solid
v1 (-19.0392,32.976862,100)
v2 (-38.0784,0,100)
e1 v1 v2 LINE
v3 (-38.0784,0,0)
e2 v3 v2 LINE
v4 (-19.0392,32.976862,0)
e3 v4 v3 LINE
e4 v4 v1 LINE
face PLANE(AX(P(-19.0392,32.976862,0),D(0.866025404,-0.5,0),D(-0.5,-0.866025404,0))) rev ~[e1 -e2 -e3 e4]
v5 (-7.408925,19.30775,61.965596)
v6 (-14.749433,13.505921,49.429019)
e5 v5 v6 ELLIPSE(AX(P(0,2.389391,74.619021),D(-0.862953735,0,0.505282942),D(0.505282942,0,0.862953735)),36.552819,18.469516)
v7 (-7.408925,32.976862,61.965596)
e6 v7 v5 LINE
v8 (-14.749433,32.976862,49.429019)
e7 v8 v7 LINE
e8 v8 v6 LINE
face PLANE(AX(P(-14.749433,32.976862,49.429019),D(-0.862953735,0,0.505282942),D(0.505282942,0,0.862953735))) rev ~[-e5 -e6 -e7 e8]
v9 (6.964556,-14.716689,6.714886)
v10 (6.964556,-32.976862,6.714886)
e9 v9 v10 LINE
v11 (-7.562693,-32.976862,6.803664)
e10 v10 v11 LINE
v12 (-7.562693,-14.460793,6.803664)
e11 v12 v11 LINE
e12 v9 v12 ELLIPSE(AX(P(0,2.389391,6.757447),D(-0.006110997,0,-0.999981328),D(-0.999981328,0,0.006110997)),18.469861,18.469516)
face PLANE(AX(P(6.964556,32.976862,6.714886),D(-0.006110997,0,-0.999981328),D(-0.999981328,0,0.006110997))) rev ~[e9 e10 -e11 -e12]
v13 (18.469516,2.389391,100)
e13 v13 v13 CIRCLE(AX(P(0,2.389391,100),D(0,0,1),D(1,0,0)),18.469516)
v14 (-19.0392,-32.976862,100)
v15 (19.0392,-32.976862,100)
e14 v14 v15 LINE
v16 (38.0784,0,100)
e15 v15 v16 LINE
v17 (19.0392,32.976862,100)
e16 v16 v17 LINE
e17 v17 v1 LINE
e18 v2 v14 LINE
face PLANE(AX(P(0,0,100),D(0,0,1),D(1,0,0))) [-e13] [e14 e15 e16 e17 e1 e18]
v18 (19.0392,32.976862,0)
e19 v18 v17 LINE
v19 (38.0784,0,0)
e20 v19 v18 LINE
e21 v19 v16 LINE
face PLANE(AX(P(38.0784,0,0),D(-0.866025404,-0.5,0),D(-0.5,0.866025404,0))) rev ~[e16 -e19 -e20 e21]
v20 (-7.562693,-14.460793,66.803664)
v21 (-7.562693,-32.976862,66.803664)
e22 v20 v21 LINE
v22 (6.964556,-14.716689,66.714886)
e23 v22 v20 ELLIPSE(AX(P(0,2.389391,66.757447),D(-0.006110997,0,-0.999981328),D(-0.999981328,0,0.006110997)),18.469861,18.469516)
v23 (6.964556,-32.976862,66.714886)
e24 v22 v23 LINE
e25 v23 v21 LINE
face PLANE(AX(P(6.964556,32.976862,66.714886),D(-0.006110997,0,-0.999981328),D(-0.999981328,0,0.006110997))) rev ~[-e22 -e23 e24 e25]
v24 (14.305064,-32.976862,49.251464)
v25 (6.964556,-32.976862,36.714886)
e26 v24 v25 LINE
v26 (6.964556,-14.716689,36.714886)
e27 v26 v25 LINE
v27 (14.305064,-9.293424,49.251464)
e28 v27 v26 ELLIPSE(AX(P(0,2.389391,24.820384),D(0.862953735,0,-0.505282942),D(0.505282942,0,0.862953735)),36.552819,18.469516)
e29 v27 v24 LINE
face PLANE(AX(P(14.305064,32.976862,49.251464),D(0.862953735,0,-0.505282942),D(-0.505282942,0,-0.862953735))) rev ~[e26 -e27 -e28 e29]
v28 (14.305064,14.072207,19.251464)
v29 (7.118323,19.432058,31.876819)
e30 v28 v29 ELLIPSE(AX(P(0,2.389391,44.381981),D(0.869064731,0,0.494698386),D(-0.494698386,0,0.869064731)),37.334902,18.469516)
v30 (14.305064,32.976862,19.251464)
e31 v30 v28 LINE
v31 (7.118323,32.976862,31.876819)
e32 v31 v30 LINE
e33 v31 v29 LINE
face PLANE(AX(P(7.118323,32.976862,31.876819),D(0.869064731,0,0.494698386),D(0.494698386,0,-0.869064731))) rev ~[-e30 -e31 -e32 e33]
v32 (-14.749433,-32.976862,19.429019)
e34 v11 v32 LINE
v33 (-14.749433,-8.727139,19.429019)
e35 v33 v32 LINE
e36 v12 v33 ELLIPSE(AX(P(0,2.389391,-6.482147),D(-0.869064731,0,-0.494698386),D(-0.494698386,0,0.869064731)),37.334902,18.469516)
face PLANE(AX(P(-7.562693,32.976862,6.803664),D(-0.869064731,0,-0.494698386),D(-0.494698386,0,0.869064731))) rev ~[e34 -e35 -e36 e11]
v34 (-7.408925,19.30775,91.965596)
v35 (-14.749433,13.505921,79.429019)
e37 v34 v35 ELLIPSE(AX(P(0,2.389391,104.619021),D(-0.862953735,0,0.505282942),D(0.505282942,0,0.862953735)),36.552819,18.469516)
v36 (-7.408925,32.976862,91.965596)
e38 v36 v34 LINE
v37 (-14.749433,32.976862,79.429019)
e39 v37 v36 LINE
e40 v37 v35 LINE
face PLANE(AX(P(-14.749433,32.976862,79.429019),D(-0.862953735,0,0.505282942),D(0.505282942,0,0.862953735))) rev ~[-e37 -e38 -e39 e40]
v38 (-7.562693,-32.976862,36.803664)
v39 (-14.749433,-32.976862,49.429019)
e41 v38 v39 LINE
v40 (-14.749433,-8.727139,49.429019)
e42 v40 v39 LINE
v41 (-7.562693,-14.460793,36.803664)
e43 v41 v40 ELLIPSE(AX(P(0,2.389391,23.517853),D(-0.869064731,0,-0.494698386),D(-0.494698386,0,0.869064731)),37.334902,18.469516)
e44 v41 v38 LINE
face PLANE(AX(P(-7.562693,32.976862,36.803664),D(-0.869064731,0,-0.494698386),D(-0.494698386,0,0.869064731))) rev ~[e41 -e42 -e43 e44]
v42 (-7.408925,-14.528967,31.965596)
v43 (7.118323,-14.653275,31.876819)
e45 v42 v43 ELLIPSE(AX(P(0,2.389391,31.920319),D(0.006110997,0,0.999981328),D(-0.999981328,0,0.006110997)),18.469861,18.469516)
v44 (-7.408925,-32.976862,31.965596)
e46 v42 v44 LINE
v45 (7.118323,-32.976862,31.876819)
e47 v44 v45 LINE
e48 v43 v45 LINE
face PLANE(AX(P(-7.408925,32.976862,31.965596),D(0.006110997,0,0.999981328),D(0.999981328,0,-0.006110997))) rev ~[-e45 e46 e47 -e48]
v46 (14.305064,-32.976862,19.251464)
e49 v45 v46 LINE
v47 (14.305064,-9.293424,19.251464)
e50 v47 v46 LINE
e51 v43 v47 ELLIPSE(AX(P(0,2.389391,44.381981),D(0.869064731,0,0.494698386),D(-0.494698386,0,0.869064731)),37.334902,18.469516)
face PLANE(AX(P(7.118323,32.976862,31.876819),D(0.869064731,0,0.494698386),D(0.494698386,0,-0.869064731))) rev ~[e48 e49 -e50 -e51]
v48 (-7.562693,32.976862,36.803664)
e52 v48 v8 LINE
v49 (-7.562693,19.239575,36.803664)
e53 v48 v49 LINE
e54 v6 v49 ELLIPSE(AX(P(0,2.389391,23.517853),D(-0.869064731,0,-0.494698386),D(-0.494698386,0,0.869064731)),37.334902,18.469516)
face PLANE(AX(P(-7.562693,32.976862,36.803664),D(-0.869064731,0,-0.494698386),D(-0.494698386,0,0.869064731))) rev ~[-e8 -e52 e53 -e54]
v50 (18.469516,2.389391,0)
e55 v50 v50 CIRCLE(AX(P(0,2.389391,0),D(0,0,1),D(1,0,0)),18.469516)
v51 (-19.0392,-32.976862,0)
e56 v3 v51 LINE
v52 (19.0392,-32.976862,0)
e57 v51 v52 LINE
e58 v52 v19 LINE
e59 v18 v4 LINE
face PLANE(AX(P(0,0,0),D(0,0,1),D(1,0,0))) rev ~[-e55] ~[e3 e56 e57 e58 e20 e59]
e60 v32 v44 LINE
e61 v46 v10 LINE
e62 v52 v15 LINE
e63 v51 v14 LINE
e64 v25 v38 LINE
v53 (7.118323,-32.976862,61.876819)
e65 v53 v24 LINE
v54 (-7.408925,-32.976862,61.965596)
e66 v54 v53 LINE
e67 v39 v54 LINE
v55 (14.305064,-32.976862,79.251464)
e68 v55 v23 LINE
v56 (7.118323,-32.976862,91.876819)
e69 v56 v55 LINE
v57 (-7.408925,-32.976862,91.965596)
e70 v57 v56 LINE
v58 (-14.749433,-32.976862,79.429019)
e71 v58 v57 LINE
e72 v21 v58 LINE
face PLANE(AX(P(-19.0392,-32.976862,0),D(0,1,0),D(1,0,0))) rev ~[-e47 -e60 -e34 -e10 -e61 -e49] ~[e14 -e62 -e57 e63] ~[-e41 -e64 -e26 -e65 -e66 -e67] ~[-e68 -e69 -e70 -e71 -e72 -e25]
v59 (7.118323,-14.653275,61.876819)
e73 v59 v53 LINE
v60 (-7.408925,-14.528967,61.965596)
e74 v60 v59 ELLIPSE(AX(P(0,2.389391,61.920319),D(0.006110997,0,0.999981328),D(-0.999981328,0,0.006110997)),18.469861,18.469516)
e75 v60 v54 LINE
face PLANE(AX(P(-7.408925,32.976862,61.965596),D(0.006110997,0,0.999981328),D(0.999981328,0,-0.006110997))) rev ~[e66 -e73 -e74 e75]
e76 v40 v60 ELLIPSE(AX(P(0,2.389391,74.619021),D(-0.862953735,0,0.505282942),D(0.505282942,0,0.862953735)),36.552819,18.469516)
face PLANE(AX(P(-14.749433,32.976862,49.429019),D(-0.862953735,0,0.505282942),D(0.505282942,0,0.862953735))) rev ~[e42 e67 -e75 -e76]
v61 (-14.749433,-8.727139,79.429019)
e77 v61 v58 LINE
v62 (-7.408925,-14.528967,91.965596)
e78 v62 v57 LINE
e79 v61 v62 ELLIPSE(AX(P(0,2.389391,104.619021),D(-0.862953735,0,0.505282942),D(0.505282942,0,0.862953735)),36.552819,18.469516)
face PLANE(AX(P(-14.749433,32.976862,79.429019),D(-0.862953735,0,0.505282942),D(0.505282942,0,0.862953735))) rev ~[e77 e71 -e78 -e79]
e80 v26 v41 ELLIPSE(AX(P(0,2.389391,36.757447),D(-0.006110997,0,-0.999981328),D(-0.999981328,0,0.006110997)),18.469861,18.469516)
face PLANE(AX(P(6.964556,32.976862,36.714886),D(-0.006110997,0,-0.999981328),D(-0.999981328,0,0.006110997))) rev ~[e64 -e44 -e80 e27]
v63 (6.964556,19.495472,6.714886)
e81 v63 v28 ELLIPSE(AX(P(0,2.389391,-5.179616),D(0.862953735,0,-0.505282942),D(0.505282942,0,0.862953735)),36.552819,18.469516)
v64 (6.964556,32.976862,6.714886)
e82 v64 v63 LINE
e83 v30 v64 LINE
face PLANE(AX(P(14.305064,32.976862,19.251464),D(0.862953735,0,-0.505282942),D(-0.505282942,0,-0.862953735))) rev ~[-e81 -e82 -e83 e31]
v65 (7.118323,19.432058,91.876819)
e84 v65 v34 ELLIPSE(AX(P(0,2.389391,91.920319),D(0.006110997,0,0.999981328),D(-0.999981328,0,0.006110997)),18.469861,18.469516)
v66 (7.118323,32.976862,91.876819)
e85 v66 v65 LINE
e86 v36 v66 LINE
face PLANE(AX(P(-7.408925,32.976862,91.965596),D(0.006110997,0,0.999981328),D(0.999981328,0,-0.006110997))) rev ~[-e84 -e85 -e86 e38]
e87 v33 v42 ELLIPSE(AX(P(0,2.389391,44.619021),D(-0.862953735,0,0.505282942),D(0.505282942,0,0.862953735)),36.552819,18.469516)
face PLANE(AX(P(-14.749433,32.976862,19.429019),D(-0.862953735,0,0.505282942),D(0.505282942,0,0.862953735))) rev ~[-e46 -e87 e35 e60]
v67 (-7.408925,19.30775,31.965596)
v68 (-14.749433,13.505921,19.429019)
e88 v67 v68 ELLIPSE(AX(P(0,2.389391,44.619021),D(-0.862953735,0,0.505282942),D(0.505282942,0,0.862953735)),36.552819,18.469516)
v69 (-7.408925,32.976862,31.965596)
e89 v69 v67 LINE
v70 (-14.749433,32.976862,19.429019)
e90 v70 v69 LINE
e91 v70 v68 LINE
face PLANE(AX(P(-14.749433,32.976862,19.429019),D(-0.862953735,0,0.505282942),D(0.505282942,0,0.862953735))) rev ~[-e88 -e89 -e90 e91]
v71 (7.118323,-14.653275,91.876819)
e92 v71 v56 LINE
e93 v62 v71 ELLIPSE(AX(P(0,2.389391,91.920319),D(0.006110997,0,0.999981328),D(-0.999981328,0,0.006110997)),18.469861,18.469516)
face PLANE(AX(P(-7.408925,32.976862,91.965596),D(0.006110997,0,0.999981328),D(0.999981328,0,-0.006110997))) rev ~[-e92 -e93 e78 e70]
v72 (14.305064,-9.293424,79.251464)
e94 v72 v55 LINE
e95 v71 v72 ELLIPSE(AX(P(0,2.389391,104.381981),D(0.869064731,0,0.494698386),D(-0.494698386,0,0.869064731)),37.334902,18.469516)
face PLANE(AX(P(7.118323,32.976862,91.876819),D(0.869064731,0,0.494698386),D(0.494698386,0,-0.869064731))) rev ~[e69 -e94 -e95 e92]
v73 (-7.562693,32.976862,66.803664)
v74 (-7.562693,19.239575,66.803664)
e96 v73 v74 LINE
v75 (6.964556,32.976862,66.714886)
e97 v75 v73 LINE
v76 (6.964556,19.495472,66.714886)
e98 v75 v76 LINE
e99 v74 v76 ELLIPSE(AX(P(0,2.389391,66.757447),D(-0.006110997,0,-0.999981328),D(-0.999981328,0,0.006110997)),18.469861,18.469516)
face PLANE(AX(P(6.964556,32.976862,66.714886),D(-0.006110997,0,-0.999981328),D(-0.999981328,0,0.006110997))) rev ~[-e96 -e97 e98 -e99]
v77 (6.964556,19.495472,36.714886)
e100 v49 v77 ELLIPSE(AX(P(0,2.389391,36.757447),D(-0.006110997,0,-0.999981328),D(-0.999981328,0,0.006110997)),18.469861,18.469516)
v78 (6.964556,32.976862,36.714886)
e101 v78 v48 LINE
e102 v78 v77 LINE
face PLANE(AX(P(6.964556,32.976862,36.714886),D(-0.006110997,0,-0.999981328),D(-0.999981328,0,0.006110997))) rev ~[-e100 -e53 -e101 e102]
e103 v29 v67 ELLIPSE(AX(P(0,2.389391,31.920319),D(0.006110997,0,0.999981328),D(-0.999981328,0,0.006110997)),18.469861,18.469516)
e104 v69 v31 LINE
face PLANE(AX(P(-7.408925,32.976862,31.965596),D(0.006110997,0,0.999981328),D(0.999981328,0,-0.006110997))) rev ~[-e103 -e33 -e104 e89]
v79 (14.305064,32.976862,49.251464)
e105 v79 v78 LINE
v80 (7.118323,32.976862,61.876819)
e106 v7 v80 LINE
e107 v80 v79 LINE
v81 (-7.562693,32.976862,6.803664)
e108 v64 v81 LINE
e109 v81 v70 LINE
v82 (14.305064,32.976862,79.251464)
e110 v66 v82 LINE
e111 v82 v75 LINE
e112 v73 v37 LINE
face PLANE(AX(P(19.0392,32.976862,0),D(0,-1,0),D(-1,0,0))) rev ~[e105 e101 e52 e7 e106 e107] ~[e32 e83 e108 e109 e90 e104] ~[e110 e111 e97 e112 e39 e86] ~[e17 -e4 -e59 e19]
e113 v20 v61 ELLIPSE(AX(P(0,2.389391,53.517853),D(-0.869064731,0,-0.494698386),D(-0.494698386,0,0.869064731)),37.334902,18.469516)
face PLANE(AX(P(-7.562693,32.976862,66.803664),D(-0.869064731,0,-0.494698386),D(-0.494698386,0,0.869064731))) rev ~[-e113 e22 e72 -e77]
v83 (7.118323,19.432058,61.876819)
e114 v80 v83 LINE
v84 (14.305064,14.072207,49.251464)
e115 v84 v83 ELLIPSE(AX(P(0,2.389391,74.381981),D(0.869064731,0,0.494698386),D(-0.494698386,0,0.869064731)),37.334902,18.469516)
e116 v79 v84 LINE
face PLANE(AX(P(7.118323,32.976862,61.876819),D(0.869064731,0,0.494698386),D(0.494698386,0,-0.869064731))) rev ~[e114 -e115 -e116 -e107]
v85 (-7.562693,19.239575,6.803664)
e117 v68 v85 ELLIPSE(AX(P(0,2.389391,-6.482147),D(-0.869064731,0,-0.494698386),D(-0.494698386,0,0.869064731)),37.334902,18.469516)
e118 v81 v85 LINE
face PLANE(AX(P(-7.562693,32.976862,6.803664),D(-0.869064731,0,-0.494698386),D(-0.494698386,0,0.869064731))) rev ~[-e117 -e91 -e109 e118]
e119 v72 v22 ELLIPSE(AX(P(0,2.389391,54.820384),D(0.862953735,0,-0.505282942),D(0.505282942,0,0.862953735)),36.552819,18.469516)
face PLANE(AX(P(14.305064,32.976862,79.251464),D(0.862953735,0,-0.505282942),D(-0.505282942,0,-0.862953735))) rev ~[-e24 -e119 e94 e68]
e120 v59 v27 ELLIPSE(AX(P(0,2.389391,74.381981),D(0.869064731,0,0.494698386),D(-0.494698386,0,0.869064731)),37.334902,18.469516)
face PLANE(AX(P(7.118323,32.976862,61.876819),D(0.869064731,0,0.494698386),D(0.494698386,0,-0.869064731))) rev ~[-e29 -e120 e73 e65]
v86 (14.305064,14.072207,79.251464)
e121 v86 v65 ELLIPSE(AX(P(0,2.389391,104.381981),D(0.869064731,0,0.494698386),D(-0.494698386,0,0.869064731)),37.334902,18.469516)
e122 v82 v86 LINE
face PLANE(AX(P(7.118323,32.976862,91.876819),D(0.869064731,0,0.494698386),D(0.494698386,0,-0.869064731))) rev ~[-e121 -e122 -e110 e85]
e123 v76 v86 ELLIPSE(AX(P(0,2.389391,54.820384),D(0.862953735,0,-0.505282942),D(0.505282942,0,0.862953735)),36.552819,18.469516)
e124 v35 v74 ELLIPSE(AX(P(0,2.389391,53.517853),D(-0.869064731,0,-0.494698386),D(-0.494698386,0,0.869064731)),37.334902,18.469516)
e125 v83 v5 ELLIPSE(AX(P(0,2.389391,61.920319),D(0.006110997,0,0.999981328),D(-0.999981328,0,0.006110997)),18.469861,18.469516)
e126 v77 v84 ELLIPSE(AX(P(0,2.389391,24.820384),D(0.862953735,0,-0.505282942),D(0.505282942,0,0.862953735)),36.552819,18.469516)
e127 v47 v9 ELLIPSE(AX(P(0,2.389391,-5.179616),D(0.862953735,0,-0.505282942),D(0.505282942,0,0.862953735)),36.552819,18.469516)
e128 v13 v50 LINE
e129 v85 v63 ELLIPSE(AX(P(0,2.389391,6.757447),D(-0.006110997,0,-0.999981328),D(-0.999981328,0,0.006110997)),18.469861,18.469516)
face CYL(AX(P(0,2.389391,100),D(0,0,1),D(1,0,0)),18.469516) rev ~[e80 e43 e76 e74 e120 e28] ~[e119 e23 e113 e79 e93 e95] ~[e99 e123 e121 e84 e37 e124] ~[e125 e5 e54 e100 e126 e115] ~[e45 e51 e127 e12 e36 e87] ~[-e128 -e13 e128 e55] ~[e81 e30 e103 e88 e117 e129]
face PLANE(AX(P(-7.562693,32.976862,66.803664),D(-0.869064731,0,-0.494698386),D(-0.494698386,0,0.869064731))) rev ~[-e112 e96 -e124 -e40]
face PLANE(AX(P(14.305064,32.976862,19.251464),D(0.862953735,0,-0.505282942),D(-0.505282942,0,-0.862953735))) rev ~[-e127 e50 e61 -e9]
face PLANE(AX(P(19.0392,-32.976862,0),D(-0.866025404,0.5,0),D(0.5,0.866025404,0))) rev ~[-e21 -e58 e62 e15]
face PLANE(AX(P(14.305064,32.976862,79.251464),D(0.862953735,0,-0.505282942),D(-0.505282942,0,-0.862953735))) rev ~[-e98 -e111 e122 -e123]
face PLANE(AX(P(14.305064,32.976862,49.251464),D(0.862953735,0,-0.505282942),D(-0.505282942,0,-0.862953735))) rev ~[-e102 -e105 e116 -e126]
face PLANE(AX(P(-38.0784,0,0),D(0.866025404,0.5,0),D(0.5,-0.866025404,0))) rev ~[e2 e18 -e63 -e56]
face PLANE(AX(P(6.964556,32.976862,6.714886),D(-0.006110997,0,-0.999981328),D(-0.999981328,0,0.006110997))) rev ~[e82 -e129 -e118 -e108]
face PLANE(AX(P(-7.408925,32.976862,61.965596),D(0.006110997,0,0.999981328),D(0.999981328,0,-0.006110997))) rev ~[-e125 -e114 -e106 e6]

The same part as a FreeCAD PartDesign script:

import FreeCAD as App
import Part
import Sketcher
Q = App.Units.Quantity


def add_polygon(sketch, points):
    """Adds a closed chain of lines whose ends are joined by coincident constraints."""
    first, n = sketch.GeometryCount, len(points)
    for a, b in zip(points, points[1:] + points[:1]):
        sketch.addGeometry(Part.LineSegment(App.Vector(*a, 0), App.Vector(*b, 0)), False)
    for i in range(n):
        sketch.addConstraint(Sketcher.Constraint("Coincident", first + i, 2, first + (i + 1) % n, 1))

doc = App.newDocument("Part")
body = doc.addObject("PartDesign::Body", "Body")

# Sketch on XY plane
sketch1 = doc.addObject("Sketcher::SketchObject", "Sketch")
body.addObject(sketch1)
sketch1.AttachmentSupport = (doc.XY_Plane, [""])
sketch1.MapMode = "FlatFace"
add_polygon(sketch1, [(38.0784, 0), (19.0392, 32.976862), (-19.0392, 32.976862), (-38.0784, 0), (-19.0392, -32.976862), (19.0392, -32.976862)])  # lines 0-5
sketch1.addConstraint(Sketcher.Constraint("Horizontal", 1))
sketch1.addConstraint(Sketcher.Constraint("Horizontal", 4))
sketch1.addConstraint(Sketcher.Constraint("Symmetric", 0, 2, 3, 2, -1, 1))
sketch1.addConstraint(Sketcher.Constraint("Symmetric", 2, 2, 5, 2, -1, 1))
sketch1.addConstraint(Sketcher.Constraint("PointOnObject", 2, 2, -1))
sketch1.addConstraint(Sketcher.Constraint("Parallel", 2, 5))
sketch1.addConstraint(Sketcher.Constraint("Vertical", 1, 2, 3, 2))
sketch1.addConstraint(Sketcher.Constraint("Angle", 0, Q("120 deg")))
sketch1.addConstraint(Sketcher.Constraint("DistanceX", 1, 2, 1, 1, Q("38.0784 mm")))
sketch1.addConstraint(Sketcher.Constraint("Distance", 0, Q("38.0784 mm")))
pad1 = doc.addObject("PartDesign::Pad", "Pad")
body.addObject(pad1)
pad1.Profile = sketch1
pad1.Length = 100

# Sketch on XY plane
sketch2 = doc.addObject("Sketcher::SketchObject", "Sketch001")
body.addObject(sketch2)
sketch2.AttachmentSupport = (doc.XY_Plane, [""])
sketch2.MapMode = "FlatFace"
sketch2.AttachmentOffset = App.Placement(App.Vector(0, 0, 100), App.Rotation())
sketch2.addGeometry(Part.Circle(App.Vector(0, 2.389391, 0), App.Vector(0, 0, 1), 18.469516), False)
sketch2.addConstraint(Sketcher.Constraint("PointOnObject", 0, 3, -2))
sketch2.addConstraint(Sketcher.Constraint("Diameter", 0, Q("36.939032 mm")))
sketch2.addConstraint(Sketcher.Constraint("DistanceY", -1, 1, 0, 3, Q("2.389391 mm")))
pocket1 = doc.addObject("PartDesign::Pocket", "Pocket")
body.addObject(pocket1)
pocket1.Profile = sketch2
pocket1.Length = 100

# Sketch on XZ plane
sketch3 = doc.addObject("Sketcher::SketchObject", "Sketch002")
body.addObject(sketch3)
sketch3.AttachmentSupport = (doc.XZ_Plane, [""])
sketch3.MapMode = "FlatFace"
sketch3.AttachmentOffset = App.Placement(App.Vector(0, 0, -32.976862), App.Rotation())
add_polygon(sketch3, [(6.964556, 36.714886), (-7.562693, 36.803664), (-14.749433, 49.429019), (-7.408925, 61.965596), (7.118323, 61.876819), (14.305064, 49.251464)])  # lines 0-5
add_polygon(sketch3, [(6.964556, 6.714886), (-7.562693, 6.803664), (-14.749433, 19.429019), (-7.408925, 31.965596), (7.118323, 31.876819), (14.305064, 19.251464)])  # lines 6-11
add_polygon(sketch3, [(6.964556, 66.714886), (-7.562693, 66.803664), (-14.749433, 79.429019), (-7.408925, 91.965596), (7.118323, 91.876819), (14.305064, 79.251464)])  # lines 12-17
sketch3.addConstraint(Sketcher.Constraint("Parallel", 0, 3))
sketch3.addConstraint(Sketcher.Constraint("Parallel", 1, 4))
sketch3.addConstraint(Sketcher.Constraint("Parallel", 2, 5))
sketch3.addConstraint(Sketcher.Constraint("Parallel", 3, 6))
sketch3.addConstraint(Sketcher.Constraint("Parallel", 4, 7))
sketch3.addConstraint(Sketcher.Constraint("Parallel", 5, 8))
sketch3.addConstraint(Sketcher.Constraint("Parallel", 6, 9))
sketch3.addConstraint(Sketcher.Constraint("Parallel", 7, 10))
sketch3.addConstraint(Sketcher.Constraint("Parallel", 8, 11))
sketch3.addConstraint(Sketcher.Constraint("Parallel", 9, 12))
sketch3.addConstraint(Sketcher.Constraint("Parallel", 10, 13))
sketch3.addConstraint(Sketcher.Constraint("Parallel", 11, 14))
sketch3.addConstraint(Sketcher.Constraint("Parallel", 12, 15))
sketch3.addConstraint(Sketcher.Constraint("Parallel", 13, 16))
sketch3.addConstraint(Sketcher.Constraint("Parallel", 14, 17))
sketch3.addConstraint(Sketcher.Constraint("Vertical", 0, 2, 6, 2))
sketch3.addConstraint(Sketcher.Constraint("Vertical", 1, 2, 7, 2))
sketch3.addConstraint(Sketcher.Constraint("Vertical", 2, 2, 8, 2))
sketch3.addConstraint(Sketcher.Constraint("Vertical", 3, 2, 9, 2))
sketch3.addConstraint(Sketcher.Constraint("Vertical", 4, 2, 10, 2))
sketch3.addConstraint(Sketcher.Constraint("Vertical", 6, 2, 12, 2))
sketch3.addConstraint(Sketcher.Constraint("Vertical", 7, 2, 13, 2))
sketch3.addConstraint(Sketcher.Constraint("Vertical", 8, 2, 14, 2))
sketch3.addConstraint(Sketcher.Constraint("Vertical", 9, 2, 15, 2))
sketch3.addConstraint(Sketcher.Constraint("Vertical", 10, 2, 16, 2))
sketch3.addConstraint(Sketcher.Constraint("Equal", 0, 1))
sketch3.addConstraint(Sketcher.Constraint("Equal", 1, 2))
sketch3.addConstraint(Sketcher.Constraint("Equal", 2, 3))
sketch3.addConstraint(Sketcher.Constraint("DistanceY", 6, 2, 0, 2, Q("30 mm")))
sketch3.addConstraint(Sketcher.Constraint("DistanceY", 0, 2, 12, 2, Q("30 mm")))
sketch3.addConstraint(Sketcher.Constraint("DistanceY", 1, 2, 3, 2, Q("12.4478 mm")))
sketch3.addConstraint(Sketcher.Constraint("Distance", 0, Q("14.52752 mm")))
sketch3.addConstraint(Sketcher.Constraint("DistanceY", -1, 1, 1, 2, Q("49.429019 mm")))
sketch3.addConstraint(Sketcher.Constraint("DistanceX", 1, 2, 0, 2, Q("7.18674 mm")))
sketch3.addConstraint(Sketcher.Constraint("DistanceX", 2, 2, 5, 2, Q("14.373481 mm")))
sketch3.addConstraint(Sketcher.Constraint("DistanceX", 0, 2, -1, 1, Q("7.562693 mm")))
pocket2 = doc.addObject("PartDesign::Pocket", "Pocket001")
body.addObject(pocket2)
pocket2.Profile = sketch3
pocket2.Type = "ThroughAll"
pocket2.Reversed = True

doc.recompute()
